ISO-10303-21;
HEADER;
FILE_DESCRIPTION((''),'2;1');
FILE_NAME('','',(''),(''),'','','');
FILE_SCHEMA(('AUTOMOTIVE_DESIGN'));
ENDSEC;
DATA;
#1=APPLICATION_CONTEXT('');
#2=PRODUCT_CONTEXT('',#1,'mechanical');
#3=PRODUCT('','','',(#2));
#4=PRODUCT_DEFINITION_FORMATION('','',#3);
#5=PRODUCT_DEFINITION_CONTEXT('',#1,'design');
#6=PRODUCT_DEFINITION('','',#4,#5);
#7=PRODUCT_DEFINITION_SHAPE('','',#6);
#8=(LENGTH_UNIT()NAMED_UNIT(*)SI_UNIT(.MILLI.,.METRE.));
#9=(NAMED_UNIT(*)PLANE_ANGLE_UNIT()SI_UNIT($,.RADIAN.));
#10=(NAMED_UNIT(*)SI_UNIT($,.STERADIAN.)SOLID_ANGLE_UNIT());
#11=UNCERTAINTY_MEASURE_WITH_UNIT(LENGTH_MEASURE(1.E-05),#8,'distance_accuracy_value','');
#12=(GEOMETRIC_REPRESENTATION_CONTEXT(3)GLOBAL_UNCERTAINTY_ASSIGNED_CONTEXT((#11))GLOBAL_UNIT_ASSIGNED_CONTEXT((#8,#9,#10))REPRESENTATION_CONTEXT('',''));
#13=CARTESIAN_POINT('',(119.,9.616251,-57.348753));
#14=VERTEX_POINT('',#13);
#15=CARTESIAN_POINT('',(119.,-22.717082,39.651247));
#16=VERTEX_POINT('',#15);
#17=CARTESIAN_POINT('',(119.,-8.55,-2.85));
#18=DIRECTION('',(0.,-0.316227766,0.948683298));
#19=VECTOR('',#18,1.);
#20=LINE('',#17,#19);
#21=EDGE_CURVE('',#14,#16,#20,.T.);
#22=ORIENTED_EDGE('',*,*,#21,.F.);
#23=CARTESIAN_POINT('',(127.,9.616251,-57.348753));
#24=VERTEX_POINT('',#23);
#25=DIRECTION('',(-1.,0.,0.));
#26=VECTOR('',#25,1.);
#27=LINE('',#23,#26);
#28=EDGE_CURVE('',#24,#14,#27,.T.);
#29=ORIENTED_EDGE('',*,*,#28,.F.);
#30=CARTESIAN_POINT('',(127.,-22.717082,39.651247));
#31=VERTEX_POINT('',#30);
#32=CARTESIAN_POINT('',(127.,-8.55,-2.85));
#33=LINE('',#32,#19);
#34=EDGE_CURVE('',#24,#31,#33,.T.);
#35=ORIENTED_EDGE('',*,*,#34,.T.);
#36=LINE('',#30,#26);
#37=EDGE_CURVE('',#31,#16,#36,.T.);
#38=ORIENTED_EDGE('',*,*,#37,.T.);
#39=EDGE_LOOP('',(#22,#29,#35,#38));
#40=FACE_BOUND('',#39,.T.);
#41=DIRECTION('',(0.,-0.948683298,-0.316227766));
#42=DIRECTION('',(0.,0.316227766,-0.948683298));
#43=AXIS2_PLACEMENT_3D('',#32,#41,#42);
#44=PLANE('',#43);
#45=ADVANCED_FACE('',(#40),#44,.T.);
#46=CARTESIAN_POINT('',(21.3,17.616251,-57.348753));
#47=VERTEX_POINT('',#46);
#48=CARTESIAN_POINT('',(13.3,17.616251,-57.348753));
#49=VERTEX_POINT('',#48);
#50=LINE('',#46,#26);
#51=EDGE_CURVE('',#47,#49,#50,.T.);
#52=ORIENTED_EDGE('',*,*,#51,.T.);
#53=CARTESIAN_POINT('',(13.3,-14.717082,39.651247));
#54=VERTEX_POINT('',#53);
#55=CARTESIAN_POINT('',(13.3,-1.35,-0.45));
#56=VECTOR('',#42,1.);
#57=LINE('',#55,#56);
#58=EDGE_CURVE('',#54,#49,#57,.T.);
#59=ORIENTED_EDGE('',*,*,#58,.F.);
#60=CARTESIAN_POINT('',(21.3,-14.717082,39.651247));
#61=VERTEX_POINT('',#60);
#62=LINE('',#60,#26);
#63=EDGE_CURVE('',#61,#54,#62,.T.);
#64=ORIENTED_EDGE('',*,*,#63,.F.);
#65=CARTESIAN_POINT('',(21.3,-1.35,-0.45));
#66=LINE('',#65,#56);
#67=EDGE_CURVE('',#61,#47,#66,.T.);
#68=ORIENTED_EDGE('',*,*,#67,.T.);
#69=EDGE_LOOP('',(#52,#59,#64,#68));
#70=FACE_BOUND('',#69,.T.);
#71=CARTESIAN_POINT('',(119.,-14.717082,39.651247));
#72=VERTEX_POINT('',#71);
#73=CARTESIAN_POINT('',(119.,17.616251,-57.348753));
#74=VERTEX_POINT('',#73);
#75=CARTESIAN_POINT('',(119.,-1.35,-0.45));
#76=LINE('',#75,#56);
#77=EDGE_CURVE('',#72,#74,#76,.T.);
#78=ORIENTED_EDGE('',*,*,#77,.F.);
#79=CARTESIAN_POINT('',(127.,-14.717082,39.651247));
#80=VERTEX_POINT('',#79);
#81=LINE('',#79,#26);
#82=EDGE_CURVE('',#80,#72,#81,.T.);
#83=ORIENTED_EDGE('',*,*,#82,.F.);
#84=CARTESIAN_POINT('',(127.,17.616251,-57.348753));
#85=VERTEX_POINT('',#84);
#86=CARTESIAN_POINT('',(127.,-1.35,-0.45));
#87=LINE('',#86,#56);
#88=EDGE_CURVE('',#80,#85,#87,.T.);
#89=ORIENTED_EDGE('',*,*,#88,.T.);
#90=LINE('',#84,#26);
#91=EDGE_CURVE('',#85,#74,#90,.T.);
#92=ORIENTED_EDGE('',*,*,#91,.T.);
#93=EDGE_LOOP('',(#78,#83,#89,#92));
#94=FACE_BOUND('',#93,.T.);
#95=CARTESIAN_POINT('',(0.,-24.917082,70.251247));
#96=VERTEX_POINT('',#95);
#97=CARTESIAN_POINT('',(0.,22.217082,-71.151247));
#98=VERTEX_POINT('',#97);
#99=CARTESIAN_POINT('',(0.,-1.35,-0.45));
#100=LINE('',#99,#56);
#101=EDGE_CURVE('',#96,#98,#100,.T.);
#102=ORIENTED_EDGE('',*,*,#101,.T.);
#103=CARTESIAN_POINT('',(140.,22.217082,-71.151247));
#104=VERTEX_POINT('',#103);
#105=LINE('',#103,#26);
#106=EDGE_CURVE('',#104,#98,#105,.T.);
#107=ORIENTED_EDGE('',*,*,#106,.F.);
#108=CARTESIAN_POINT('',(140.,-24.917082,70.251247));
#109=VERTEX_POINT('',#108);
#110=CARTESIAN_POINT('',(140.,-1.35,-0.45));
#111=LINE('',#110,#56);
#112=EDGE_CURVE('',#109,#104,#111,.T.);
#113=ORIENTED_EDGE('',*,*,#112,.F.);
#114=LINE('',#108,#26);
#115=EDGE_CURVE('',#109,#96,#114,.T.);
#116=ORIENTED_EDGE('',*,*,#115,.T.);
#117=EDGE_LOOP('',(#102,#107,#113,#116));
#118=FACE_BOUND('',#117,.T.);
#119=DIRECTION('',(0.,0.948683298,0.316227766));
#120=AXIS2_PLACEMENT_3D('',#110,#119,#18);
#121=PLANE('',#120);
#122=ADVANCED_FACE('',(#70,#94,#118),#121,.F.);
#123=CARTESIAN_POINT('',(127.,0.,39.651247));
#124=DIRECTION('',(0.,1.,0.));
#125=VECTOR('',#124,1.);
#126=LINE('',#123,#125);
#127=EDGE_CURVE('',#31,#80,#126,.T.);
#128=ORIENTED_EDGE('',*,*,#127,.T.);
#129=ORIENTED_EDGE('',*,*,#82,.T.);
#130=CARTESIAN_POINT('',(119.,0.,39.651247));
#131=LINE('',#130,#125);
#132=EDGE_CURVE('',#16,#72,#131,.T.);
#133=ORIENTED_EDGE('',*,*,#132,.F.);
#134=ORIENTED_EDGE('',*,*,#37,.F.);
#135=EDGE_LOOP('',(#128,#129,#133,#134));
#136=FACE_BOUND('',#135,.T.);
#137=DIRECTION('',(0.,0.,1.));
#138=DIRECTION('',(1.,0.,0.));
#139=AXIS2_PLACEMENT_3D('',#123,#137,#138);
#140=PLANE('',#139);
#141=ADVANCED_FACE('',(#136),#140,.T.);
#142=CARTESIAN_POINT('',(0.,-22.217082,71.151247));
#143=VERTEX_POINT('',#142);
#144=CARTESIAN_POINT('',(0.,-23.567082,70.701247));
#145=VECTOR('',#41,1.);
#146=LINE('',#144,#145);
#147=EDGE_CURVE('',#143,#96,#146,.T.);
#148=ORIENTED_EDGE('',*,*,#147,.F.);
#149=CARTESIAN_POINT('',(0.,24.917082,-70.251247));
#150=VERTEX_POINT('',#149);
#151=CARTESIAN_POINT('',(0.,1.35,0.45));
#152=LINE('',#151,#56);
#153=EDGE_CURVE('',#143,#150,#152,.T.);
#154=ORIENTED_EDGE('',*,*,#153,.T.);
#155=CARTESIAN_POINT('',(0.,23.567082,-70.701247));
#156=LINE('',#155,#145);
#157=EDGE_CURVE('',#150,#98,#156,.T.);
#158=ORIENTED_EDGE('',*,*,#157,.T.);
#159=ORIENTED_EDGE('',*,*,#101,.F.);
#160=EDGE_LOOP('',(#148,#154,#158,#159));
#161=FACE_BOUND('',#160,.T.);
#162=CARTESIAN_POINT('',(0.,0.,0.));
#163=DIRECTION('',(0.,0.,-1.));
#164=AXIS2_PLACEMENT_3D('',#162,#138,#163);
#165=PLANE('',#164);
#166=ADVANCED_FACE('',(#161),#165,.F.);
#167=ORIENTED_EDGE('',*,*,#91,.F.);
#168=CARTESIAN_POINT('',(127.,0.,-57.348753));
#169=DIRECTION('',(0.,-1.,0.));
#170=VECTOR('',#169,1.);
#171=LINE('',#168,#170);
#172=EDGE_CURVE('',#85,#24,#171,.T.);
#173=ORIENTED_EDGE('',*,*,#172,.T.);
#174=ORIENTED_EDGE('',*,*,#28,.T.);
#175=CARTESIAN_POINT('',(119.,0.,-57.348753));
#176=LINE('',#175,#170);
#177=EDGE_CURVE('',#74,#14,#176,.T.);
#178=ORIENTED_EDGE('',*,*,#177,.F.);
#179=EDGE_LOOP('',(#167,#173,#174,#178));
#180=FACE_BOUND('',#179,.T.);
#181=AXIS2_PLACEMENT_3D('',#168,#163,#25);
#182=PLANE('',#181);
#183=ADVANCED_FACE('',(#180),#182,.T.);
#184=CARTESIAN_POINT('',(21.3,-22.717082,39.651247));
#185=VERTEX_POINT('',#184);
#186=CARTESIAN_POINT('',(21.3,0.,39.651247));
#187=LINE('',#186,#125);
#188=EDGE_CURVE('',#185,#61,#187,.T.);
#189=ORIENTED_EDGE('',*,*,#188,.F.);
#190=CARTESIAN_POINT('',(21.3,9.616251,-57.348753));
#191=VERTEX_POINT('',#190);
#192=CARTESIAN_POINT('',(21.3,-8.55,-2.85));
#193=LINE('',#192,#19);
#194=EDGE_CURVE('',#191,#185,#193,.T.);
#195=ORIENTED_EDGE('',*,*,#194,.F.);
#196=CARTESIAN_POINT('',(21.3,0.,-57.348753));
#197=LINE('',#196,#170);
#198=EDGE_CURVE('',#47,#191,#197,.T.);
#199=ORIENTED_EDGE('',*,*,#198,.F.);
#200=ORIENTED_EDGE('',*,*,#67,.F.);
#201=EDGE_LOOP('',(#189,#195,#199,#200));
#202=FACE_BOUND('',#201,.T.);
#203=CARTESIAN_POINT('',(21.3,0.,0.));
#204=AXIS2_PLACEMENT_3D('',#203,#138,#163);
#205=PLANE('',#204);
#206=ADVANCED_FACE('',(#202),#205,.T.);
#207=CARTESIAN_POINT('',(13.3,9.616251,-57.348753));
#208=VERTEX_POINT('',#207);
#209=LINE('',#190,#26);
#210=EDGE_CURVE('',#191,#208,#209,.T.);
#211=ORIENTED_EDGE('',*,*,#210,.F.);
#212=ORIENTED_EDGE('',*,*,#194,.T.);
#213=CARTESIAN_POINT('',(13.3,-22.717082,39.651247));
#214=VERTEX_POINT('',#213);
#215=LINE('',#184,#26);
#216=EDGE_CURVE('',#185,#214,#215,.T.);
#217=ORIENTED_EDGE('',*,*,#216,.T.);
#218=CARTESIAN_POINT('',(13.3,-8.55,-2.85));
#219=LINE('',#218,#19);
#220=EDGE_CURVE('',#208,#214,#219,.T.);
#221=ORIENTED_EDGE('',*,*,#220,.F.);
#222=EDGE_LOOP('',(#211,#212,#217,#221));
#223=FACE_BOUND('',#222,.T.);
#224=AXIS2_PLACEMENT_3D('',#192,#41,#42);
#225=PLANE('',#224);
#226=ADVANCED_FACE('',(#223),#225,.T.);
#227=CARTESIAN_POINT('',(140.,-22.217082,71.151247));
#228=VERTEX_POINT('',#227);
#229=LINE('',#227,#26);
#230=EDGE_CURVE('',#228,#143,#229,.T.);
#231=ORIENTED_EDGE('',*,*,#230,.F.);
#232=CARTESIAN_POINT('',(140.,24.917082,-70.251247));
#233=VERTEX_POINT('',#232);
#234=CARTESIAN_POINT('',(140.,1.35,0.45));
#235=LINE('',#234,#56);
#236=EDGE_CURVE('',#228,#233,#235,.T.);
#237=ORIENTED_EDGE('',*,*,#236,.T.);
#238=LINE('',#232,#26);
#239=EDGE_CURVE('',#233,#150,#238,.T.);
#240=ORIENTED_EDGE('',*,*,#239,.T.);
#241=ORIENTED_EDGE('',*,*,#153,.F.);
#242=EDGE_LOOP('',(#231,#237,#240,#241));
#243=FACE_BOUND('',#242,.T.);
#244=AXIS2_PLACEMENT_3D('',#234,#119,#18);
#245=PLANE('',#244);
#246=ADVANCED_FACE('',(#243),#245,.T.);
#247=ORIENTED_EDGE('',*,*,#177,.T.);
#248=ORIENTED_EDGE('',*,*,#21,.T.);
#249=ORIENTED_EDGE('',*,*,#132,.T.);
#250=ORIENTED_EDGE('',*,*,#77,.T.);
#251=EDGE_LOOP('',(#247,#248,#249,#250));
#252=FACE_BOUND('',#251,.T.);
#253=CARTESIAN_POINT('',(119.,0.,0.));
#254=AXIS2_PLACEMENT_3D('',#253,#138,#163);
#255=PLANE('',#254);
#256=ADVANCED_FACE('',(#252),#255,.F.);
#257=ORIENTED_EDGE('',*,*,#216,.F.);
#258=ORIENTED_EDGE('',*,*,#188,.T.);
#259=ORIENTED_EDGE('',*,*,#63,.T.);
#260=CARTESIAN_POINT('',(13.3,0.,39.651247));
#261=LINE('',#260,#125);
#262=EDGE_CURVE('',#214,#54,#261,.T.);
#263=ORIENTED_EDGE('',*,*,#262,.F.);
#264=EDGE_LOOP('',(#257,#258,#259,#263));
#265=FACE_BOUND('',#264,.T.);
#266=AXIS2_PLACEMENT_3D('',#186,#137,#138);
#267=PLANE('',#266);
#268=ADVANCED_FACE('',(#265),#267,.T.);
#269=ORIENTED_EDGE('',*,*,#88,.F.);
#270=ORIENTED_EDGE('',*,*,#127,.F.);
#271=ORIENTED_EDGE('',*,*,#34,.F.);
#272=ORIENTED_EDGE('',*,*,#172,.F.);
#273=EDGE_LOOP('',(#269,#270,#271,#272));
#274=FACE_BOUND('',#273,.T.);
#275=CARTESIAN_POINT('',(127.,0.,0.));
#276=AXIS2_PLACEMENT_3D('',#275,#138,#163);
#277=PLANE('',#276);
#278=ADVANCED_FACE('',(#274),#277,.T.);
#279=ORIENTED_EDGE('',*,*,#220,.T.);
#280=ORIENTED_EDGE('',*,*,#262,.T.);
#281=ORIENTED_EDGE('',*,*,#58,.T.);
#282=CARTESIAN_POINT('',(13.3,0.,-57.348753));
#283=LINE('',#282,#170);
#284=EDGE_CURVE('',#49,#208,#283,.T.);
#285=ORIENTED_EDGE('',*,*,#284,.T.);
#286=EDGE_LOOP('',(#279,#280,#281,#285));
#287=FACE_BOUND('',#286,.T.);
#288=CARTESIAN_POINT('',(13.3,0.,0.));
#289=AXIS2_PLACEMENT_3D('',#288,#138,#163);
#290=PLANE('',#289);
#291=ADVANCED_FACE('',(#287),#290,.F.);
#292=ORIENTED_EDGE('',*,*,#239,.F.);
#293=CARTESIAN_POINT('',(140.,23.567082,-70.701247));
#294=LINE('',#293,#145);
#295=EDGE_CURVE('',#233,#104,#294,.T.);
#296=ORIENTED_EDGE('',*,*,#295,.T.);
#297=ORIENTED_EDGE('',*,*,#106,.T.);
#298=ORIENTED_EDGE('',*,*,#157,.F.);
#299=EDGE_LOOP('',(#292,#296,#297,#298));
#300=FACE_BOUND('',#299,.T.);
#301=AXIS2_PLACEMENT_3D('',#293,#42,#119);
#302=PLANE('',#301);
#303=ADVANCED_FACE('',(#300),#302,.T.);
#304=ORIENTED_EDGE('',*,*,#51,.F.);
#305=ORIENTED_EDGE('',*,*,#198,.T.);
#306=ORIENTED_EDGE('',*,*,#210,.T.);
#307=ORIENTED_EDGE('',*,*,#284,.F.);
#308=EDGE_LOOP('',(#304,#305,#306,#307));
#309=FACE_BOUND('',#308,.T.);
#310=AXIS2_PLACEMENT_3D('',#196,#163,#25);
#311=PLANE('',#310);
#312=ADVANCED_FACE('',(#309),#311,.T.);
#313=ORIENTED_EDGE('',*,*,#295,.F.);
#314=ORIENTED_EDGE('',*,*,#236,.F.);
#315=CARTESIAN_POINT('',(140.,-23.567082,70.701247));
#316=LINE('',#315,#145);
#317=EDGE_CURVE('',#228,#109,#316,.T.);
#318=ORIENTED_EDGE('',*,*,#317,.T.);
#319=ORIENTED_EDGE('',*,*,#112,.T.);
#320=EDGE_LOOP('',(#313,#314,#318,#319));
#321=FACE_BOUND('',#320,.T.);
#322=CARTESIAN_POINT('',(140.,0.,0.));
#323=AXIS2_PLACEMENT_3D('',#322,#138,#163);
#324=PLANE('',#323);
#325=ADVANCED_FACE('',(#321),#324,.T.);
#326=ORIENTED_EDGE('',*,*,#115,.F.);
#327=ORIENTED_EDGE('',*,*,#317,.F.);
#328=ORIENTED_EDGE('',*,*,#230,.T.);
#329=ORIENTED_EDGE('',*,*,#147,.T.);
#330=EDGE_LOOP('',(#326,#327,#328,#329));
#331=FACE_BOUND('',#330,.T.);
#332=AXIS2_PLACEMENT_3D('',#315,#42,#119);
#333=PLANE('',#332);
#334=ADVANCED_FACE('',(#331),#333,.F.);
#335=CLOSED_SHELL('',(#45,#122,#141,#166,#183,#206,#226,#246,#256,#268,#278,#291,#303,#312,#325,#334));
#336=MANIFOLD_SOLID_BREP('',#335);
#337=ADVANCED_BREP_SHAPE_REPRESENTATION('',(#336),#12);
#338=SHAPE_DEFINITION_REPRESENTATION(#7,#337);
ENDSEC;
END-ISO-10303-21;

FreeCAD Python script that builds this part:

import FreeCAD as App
import Part
import Sketcher

doc = App.newDocument("Part")
params = doc.addObject("Spreadsheet::Sheet", "Params")
for row, (alias, value) in enumerate([
    ("pad1_length", "140 mm"),
    ("sketch2_width", "8 mm"),
    ("pad2_length", "8 mm"),
    ("sketch3_width", "8 mm"),
    ("pad3_length", "8 mm"),
], start=1):
    params.set(f"A{row}", alias)
    params.set(f"B{row}", "=" + value)
    params.setAlias(f"B{row}", alias)

body = doc.addObject("PartDesign::Body", "Body")

# Sketch on YZ plane
sketch1 = body.newObject("Sketcher::SketchObject", "Sketch")
sketch1.AttachmentSupport = (doc.getObject("YZ_Plane"), [""])
sketch1.MapMode = "FlatFace"
sketch1.addGeometry([
    Part.LineSegment(App.Vector(-24.9, 70.3, 0), App.Vector(22.2, -71.2, 0)),
    Part.LineSegment(App.Vector(22.2, -71.2, 0), App.Vector(24.9, -70.3, 0)),
    Part.LineSegment(App.Vector(24.9, -70.3, 0), App.Vector(-22.2, 71.2, 0)),
    Part.LineSegment(App.Vector(-22.2, 71.2, 0), App.Vector(-24.9, 70.3, 0)),
], False)
sketch1.addConstraint([
    Sketcher.Constraint("Coincident", 0, 2, 1, 1),
    Sketcher.Constraint("Coincident", 1, 2, 2, 1),
    Sketcher.Constraint("Coincident", 2, 2, 3, 1),
    Sketcher.Constraint("Coincident", 3, 2, 0, 1),
    Sketcher.Constraint("Symmetric", 0, 2, 2, 2, -1, 1),
    Sketcher.Constraint("Symmetric", 1, 2, 3, 2, -1, 1),
    Sketcher.Constraint("Perpendicular", 0, 1),
    Sketcher.Constraint("DistanceX", 0, 2, 1, 2, 2.7),
    Sketcher.Constraint("DistanceY", 0, 2, 1, 2, 0.9),
    Sketcher.Constraint("Distance", 0, 149.051317),
])
pad1 = body.newObject("PartDesign::Pad", "Pad")
pad1.Profile = sketch1
pad1.setExpression("Length", "Params.pad1_length")

# Sketch on YZ plane
sketch2 = body.newObject("Sketcher::SketchObject", "Sketch001")
sketch2.AttachmentSupport = (doc.getObject("YZ_Plane"), [""])
sketch2.MapMode = "FlatFace"
sketch2.AttachmentOffset = App.Placement(App.Vector(0, 0, 13.3), App.Rotation())
sketch2.addGeometry([
    Part.LineSegment(App.Vector(18, -57, 0), App.Vector(-15, 40, 0)),
    Part.LineSegment(App.Vector(-15, 40, 0), App.Vector(-23, 40, 0)),
    Part.LineSegment(App.Vector(-23, 40, 0), App.Vector(10, -57, 0)),
    Part.LineSegment(App.Vector(10, -57, 0), App.Vector(18, -57, 0)),
], False)
sketch2.addConstraint([
    Sketcher.Constraint("Coincident", 0, 2, 1, 1),
    Sketcher.Constraint("Coincident", 1, 2, 2, 1),
    Sketcher.Constraint("Coincident", 2, 2, 3, 1),
    Sketcher.Constraint("Coincident", 3, 2, 0, 1),
    Sketcher.Constraint("Horizontal", 1),
    Sketcher.Constraint("Horizontal", 3),
    Sketcher.Constraint("Parallel", 0, 2),
    Sketcher.Constraint("DistanceX", 1, 2, 1, 1, 8.0),
    Sketcher.Constraint("DistanceY", 2, 2, 0, 2, 97.0),
    Sketcher.Constraint("DistanceX", -1, 1, 2, 2, 9.616251),
    Sketcher.Constraint("Distance", 0, 102.246978),
    Sketcher.Constraint("DistanceY", -1, 1, 0, 2, 39.651247),
])
sketch2.setExpression("Constraints[7]", "Params.sketch2_width")
pad2 = body.newObject("PartDesign::Pad", "Pad001")
pad2.Profile = sketch2
pad2.setExpression("Length", "Params.pad2_length")

# Sketch on YZ plane
sketch3 = body.newObject("Sketcher::SketchObject", "Sketch002")
sketch3.AttachmentSupport = (doc.getObject("YZ_Plane"), [""])
sketch3.MapMode = "FlatFace"
sketch3.AttachmentOffset = App.Placement(App.Vector(0, 0, 119), App.Rotation())
sketch3.addGeometry([
    Part.LineSegment(App.Vector(18, -57, 0), App.Vector(-15, 40, 0)),
    Part.LineSegment(App.Vector(-15, 40, 0), App.Vector(-23, 40, 0)),
    Part.LineSegment(App.Vector(-23, 40, 0), App.Vector(10, -57, 0)),
    Part.LineSegment(App.Vector(10, -57, 0), App.Vector(18, -57, 0)),
], False)
sketch3.addConstraint([
    Sketcher.Constraint("Coincident", 0, 2, 1, 1),
    Sketcher.Constraint("Coincident", 1, 2, 2, 1),
    Sketcher.Constraint("Coincident", 2, 2, 3, 1),
    Sketcher.Constraint("Coincident", 3, 2, 0, 1),
    Sketcher.Constraint("Horizontal", 1),
    Sketcher.Constraint("Horizontal", 3),
    Sketcher.Constraint("Parallel", 0, 2),
    Sketcher.Constraint("DistanceX", 1, 2, 1, 1, 8.0),
    Sketcher.Constraint("DistanceY", 2, 2, 0, 2, 97.0),
    Sketcher.Constraint("DistanceX", -1, 1, 2, 2, 9.616251),
    Sketcher.Constraint("Distance", 0, 102.246978),
    Sketcher.Constraint("DistanceY", -1, 1, 0, 2, 39.651247),
])
sketch3.setExpression("Constraints[7]", "Params.sketch3_width")
pad3 = body.newObject("PartDesign::Pad", "Pad002")
pad3.Profile = sketch3
pad3.setExpression("Length", "Params.pad3_length")

doc.recompute()
